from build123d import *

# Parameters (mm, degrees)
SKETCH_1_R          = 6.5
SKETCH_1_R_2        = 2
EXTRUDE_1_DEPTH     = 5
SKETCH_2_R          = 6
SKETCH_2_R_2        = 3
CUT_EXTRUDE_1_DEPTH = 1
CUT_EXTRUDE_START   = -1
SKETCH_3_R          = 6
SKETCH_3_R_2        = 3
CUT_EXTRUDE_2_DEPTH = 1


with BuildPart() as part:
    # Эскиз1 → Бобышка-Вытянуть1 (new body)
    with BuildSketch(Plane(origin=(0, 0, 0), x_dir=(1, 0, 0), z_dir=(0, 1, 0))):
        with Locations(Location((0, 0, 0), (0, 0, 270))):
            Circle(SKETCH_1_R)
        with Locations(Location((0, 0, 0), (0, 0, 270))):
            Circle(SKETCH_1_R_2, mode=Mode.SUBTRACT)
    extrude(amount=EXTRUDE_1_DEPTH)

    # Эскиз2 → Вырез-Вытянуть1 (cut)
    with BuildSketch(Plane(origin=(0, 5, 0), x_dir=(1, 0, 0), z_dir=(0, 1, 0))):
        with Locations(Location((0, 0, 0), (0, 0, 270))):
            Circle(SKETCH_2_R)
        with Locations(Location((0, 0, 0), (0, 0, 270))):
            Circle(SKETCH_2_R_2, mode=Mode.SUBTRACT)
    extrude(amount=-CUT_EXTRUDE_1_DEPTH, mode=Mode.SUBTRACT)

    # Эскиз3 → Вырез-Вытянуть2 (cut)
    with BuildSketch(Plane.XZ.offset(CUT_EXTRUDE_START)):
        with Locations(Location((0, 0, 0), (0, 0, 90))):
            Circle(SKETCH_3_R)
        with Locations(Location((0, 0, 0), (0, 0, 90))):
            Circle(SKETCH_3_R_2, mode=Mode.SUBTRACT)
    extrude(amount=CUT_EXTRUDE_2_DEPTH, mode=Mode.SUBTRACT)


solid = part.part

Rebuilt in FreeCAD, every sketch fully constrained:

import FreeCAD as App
import Part
import Sketcher

V = App.Vector

doc = App.newDocument("Part")
params = doc.addObject("Spreadsheet::Sheet", "Params")
for row, (alias, value) in enumerate([
    ("sketch1_diameter", "13 mm"),
    ("sketch1_diameter2", "4 mm"),
    ("pad1_length", "5 mm"),
    ("sketch2_diameter", "12 mm"),
    ("sketch2_diameter2", "6 mm"),
    ("pocket1_length", "1 mm"),
    ("sketch3_diameter", "12 mm"),
    ("sketch3_diameter2", "6 mm"),
    ("pocket2_length", "1 mm"),
], start=1):
    params.set(f"A{row}", alias)
    params.set(f"B{row}", "=" + value)
    params.setAlias(f"B{row}", alias)

body = doc.addObject("PartDesign::Body", "Body")

# Sketch on XZ plane
sketch1 = doc.addObject("Sketcher::SketchObject", "Sketch")
body.addObject(sketch1)
sketch1.AttachmentSupport = (doc.XZ_Plane, [""])
sketch1.MapMode = "FlatFace"
sketch1.addGeometry(Part.Circle(V(0, 0, 0), V(0, 0, 1), 6.5), False)
sketch1.addGeometry(Part.Circle(V(0, 0, 0), V(0, 0, 1), 2), False)
sketch1.addConstraint(Sketcher.Constraint("Coincident", 0, 3, -1, 1))
sketch1.addConstraint(Sketcher.Constraint("Coincident", 1, 3, -1, 1))
sketch1.addConstraint(Sketcher.Constraint("Diameter", 0, 13.0))
sketch1.addConstraint(Sketcher.Constraint("Diameter", 1, 4.0))
sketch1.setExpression("Constraints[2]", "Params.sketch1_diameter")
sketch1.setExpression("Constraints[3]", "Params.sketch1_diameter2")
pad1 = doc.addObject("PartDesign::Pad", "Pad")
body.addObject(pad1)
pad1.Profile = sketch1
pad1.setExpression("Length", "Params.pad1_length")
pad1.Reversed = True

# Sketch on XZ plane
sketch2 = doc.addObject("Sketcher::SketchObject", "Sketch001")
body.addObject(sketch2)
sketch2.AttachmentSupport = (doc.XZ_Plane, [""])
sketch2.MapMode = "FlatFace"
sketch2.AttachmentOffset = App.Placement(V(0, 0, -5), App.Rotation())
sketch2.addGeometry(Part.Circle(V(0, 0, 0), V(0, 0, 1), 6), False)
sketch2.addGeometry(Part.Circle(V(0, 0, 0), V(0, 0, 1), 3), False)
sketch2.addConstraint(Sketcher.Constraint("Coincident", 0, 3, -1, 1))
sketch2.addConstraint(Sketcher.Constraint("Coincident", 1, 3, -1, 1))
sketch2.addConstraint(Sketcher.Constraint("Diameter", 0, 12.0))
sketch2.addConstraint(Sketcher.Constraint("Diameter", 1, 6.0))
sketch2.setExpression("Constraints[2]", "Params.sketch2_diameter")
sketch2.setExpression("Constraints[3]", "Params.sketch2_diameter2")
pocket1 = doc.addObject("PartDesign::Pocket", "Pocket")
body.addObject(pocket1)
pocket1.Profile = sketch2
pocket1.setExpression("Length", "Params.pocket1_length")
pocket1.Reversed = True

# Sketch on XZ plane
sketch3 = doc.addObject("Sketcher::SketchObject", "Sketch002")
body.addObject(sketch3)
sketch3.AttachmentSupport = (doc.XZ_Plane, [""])
sketch3.MapMode = "FlatFace"
sketch3.AttachmentOffset = App.Placement(V(0, 0, -1), App.Rotation())
sketch3.addGeometry(Part.Circle(V(0, 0, 0), V(0, 0, 1), 6), False)
sketch3.addGeometry(Part.Circle(V(0, 0, 0), V(0, 0, 1), 3), False)
sketch3.addConstraint(Sketcher.Constraint("Coincident", 0, 3, -1, 1))
sketch3.addConstraint(Sketcher.Constraint("Coincident", 1, 3, -1, 1))
sketch3.addConstraint(Sketcher.Constraint("Diameter", 0, 12.0))
sketch3.addConstraint(Sketcher.Constraint("Diameter", 1, 6.0))
sketch3.setExpression("Constraints[2]", "Params.sketch3_diameter")
sketch3.setExpression("Constraints[3]", "Params.sketch3_diameter2")
pocket2 = doc.addObject("PartDesign::Pocket", "Pocket001")
body.addObject(pocket2)
pocket2.Profile = sketch3
pocket2.setExpression("Length", "Params.pocket2_length")
pocket2.Reversed = True

doc.recompute()
